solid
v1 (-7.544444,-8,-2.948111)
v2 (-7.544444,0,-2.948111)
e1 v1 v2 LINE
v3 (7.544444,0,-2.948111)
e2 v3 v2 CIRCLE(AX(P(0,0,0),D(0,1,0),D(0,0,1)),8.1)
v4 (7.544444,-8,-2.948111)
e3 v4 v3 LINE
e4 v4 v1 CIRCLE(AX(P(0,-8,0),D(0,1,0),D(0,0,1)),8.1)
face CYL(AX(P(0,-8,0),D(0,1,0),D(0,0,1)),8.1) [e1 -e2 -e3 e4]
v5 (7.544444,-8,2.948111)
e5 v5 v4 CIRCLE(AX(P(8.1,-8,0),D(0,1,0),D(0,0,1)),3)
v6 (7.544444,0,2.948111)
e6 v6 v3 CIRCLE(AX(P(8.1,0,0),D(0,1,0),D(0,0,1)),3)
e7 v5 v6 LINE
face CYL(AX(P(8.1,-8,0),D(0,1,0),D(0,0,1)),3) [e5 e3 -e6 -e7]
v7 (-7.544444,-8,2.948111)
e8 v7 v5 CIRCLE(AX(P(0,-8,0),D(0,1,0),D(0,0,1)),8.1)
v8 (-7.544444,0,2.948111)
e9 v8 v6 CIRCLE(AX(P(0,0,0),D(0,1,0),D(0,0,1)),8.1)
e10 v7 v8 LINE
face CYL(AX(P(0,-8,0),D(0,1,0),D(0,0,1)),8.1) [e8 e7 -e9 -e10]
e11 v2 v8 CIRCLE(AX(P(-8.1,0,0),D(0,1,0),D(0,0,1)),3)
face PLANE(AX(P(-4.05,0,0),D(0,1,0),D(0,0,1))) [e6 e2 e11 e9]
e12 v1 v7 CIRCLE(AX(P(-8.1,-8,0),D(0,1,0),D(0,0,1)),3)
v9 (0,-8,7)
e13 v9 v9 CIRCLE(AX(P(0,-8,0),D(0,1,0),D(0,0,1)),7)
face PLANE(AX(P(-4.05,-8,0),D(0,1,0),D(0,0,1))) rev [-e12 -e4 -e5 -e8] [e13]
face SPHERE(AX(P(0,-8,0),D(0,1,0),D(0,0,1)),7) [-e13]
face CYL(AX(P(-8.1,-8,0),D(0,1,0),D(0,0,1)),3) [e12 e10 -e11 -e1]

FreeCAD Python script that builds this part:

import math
import FreeCAD as App
import Part
import Sketcher
from FreeCAD import Vector
Q = App.Units.Quantity

doc = App.newDocument("Part")
params = doc.addObject("Spreadsheet::Sheet", "Params")
for row, (alias, value) in enumerate([
    ("sketch1_radius", "3 mm"),
    ("sketch1_radius2", "8.1 mm"),
    ("pad1_length", "8 mm"),
    ("sketch2_radius", "7 mm"),
    ("revolution_angle", "360 deg"),
], start=1):
    params.set(f"A{row}", alias)
    params.set(f"B{row}", "=" + value)
    params.setAlias(f"B{row}", alias)

body = doc.addObject("PartDesign::Body", "Body")

# Sketch on XZ plane
sketch1 = body.newObject("Sketcher::SketchObject", "Sketch")
sketch1.AttachmentSupport = (doc.getObject("XZ_Plane"), [""])
sketch1.MapMode = "FlatFace"
sketch1.addGeometry([
    Part.ArcOfCircle(Part.Circle(Vector(0, 0, 0), Vector(0, 0, 1), 8.1), math.radians(21.343859), math.radians(158.656141)),
    Part.ArcOfCircle(Part.Circle(Vector(8.1, 0, 0), Vector(0, 0, 1), 3), math.radians(-100.671929), math.radians(100.671929)),
    Part.ArcOfCircle(Part.Circle(Vector(0, 0, 0), Vector(0, 0, 1), 8.1), math.radians(-158.656141), math.radians(-21.343859)),
    Part.ArcOfCircle(Part.Circle(Vector(-8.1, 0, 0), Vector(0, 0, 1), 3), math.radians(79.328071), math.radians(280.671929)),
], False)
sketch1.addConstraint([
    Sketcher.Constraint("Coincident", 0, 1, 1, 2),
    Sketcher.Constraint("Coincident", 1, 1, 2, 2),
    Sketcher.Constraint("Coincident", 2, 1, 3, 2),
    Sketcher.Constraint("Coincident", 3, 1, 0, 2),
    Sketcher.Constraint("Coincident", 0, 3, -1, 1),
    Sketcher.Constraint("Coincident", 2, 3, -1, 1),
    Sketcher.Constraint("Equal", 0, 2),
    Sketcher.Constraint("Equal", 1, 3),
    Sketcher.Constraint("Symmetric", 1, 3, 3, 3, -1, 1),
    Sketcher.Constraint("PointOnObject", 1, 3, -1),
    Sketcher.Constraint("Radius", 1, Q("3 mm")),
    Sketcher.Constraint("Radius", 0, Q("8.1 mm")),
    Sketcher.Constraint("DistanceX", -1, 1, 1, 3, Q("8.1 mm")),
])
sketch1.setExpression("Constraints[10]", "Params.sketch1_radius")
sketch1.setExpression("Constraints[11]", "Params.sketch1_radius2")
pad1 = body.newObject("PartDesign::Pad", "Pad")
pad1.Profile = sketch1
pad1.setExpression("Length", "Params.pad1_length")

# Sketch on XZ plane
sketch2 = body.newObject("Sketcher::SketchObject", "Sketch001")
sketch2.AttachmentSupport = (doc.getObject("XZ_Plane"), [""])
sketch2.MapMode = "FlatFace"
sketch2.AttachmentOffset = App.Placement(Vector(0, 0, 8), App.Rotation())
sketch2.addGeometry([
    Part.LineSegment(Vector(0, -7, 0), Vector(0, 7, 0)),
    Part.ArcOfCircle(Part.Circle(Vector(0, 0, 0), Vector(0, 0, 1), 7), math.radians(90), math.radians(270)),
], False)
sketch2.addConstraint([
    Sketcher.Constraint("Coincident", 0, 1, 1, 2),
    Sketcher.Constraint("Coincident", 1, 1, 0, 2),
    Sketcher.Constraint("Vertical", 0),
    Sketcher.Constraint("Coincident", 1, 3, -1, 1),
    Sketcher.Constraint("PointOnObject", 0, 1, -2),
    Sketcher.Constraint("Radius", 1, Q("7 mm")),
])
sketch2.setExpression("Constraints[5]", "Params.sketch2_radius")
revolution = body.newObject("PartDesign::Revolution", "Revolution")
revolution.Profile = sketch2
revolution.ReferenceAxis = (sketch2, ["V_Axis"])
revolution.setExpression("Angle", "Params.revolution_angle")

doc.recompute()
